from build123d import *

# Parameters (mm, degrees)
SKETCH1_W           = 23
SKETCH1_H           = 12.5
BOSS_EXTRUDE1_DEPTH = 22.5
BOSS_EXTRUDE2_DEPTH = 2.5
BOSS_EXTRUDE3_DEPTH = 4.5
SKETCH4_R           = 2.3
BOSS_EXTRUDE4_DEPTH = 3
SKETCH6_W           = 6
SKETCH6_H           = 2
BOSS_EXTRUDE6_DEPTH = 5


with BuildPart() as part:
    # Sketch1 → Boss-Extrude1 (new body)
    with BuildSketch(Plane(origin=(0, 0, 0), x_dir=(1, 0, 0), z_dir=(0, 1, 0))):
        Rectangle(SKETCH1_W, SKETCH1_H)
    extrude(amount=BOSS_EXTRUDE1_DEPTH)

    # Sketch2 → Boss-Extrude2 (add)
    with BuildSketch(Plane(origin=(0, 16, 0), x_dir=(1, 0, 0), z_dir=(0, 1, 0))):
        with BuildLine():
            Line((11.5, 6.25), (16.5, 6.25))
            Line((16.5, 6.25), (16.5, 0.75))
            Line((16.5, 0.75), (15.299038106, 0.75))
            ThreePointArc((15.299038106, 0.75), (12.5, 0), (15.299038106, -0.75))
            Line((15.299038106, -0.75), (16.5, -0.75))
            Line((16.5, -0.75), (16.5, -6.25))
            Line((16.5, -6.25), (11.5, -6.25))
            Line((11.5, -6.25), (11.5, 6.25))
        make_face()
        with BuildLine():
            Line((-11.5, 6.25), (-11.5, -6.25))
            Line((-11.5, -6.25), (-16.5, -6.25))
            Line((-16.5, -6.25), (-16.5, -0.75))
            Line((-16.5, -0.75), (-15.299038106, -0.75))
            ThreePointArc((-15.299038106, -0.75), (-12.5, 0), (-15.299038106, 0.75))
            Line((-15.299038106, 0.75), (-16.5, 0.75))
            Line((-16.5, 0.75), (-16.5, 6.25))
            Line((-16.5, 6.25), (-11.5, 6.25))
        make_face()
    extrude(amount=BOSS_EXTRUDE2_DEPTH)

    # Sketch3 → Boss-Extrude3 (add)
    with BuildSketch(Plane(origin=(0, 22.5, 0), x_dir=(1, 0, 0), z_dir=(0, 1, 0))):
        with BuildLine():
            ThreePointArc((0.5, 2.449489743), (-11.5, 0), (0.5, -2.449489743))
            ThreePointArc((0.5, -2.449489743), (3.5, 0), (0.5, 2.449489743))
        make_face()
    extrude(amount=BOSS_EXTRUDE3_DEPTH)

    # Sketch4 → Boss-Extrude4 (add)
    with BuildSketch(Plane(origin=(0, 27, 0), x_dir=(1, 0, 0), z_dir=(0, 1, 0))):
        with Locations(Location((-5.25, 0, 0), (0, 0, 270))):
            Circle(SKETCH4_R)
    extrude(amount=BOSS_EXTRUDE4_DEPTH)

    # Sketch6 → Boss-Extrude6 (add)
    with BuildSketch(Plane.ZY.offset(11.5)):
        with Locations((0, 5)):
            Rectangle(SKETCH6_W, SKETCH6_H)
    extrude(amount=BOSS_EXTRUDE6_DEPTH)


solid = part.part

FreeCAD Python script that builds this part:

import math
import FreeCAD as App
import Part
import Sketcher
from FreeCAD import Vector
Q = App.Units.Quantity


def add_polygon(sketch, points):
    """Adds a closed chain of lines whose ends are joined by coincident constraints."""
    first, n = sketch.GeometryCount, len(points)
    for a, b in zip(points, points[1:] + points[:1]):
        sketch.addGeometry(Part.LineSegment(App.Vector(*a, 0), App.Vector(*b, 0)), False)
    for i in range(n):
        sketch.addConstraint(Sketcher.Constraint("Coincident", first + i, 2, first + (i + 1) % n, 1))

doc = App.newDocument("Part")
body = doc.addObject("PartDesign::Body", "Body")

# Sketch on XZ plane
sketch1 = body.newObject("Sketcher::SketchObject", "Sketch")
sketch1.AttachmentSupport = (doc.getObject("XZ_Plane"), [""])
sketch1.MapMode = "FlatFace"
add_polygon(sketch1, [(-11.5, -6.25), (-11.5, 6.25), (11.5, 6.25), (11.5, -6.25)])  # lines 0-3
sketch1.addConstraint([
    Sketcher.Constraint("Vertical", 0),
    Sketcher.Constraint("Horizontal", 1),
    Sketcher.Constraint("Vertical", 2),
    Sketcher.Constraint("Horizontal", 3),
    Sketcher.Constraint("Symmetric", 0, 2, 2, 2, -1, 1),
    Sketcher.Constraint("DistanceX", 1, 1, 1, 2, Q("23 mm")),
    Sketcher.Constraint("DistanceY", 0, 1, 0, 2, Q("12.5 mm")),
])
pad1 = body.newObject("PartDesign::Pad", "Pad")
pad1.Profile = sketch1
pad1.Length = 22.5
pad1.Reversed = True

# Sketch on XZ plane
sketch2 = body.newObject("Sketcher::SketchObject", "Sketch001")
sketch2.AttachmentSupport = (doc.getObject("XZ_Plane"), [""])
sketch2.MapMode = "FlatFace"
sketch2.AttachmentOffset = App.Placement(Vector(0, 0, -16), App.Rotation())
sketch2.addGeometry([
    Part.LineSegment(Vector(16.5, -6.25, 0), Vector(11.5, -6.25, 0)),  # 0
    Part.LineSegment(Vector(11.5, -6.25, 0), Vector(11.5, 6.25, 0)),  # 1
    Part.LineSegment(Vector(11.5, 6.25, 0), Vector(16.5, 6.25, 0)),  # 2
    Part.LineSegment(Vector(16.5, 6.25, 0), Vector(16.5, 0.75, 0)),  # 3
    Part.LineSegment(Vector(16.5, 0.75, 0), Vector(15.299038, 0.75, 0)),  # 4
    Part.ArcOfCircle(Part.Circle(Vector(14, 0, 0), Vector(0, 0, 1), 1.5), math.radians(30), math.radians(330)),  # 5
    Part.LineSegment(Vector(15.299038, -0.75, 0), Vector(16.5, -0.75, 0)),  # 6
    Part.LineSegment(Vector(16.5, -0.75, 0), Vector(16.5, -6.25, 0)),  # 7
    Part.LineSegment(Vector(-11.5, 6.25, 0), Vector(-11.5, -6.25, 0)),  # 8
    Part.LineSegment(Vector(-11.5, -6.25, 0), Vector(-16.5, -6.25, 0)),  # 9
    Part.LineSegment(Vector(-16.5, -6.25, 0), Vector(-16.5, -0.75, 0)),  # 10
    Part.LineSegment(Vector(-16.5, -0.75, 0), Vector(-15.299038, -0.75, 0)),  # 11
    Part.ArcOfCircle(Part.Circle(Vector(-14, 0, 0), Vector(0, 0, 1), 1.5), math.radians(-150), math.radians(150)),  # 12
    Part.LineSegment(Vector(-15.299038, 0.75, 0), Vector(-16.5, 0.75, 0)),  # 13
    Part.LineSegment(Vector(-16.5, 0.75, 0), Vector(-16.5, 6.25, 0)),  # 14
    Part.LineSegment(Vector(-16.5, 6.25, 0), Vector(-11.5, 6.25, 0)),  # 15
], False)
sketch2.addConstraint([
    Sketcher.Constraint("Coincident", 0, 2, 1, 1),
    Sketcher.Constraint("Coincident", 1, 2, 2, 1),
    Sketcher.Constraint("Coincident", 2, 2, 3, 1),
    Sketcher.Constraint("Coincident", 3, 2, 4, 1),
    Sketcher.Constraint("Coincident", 4, 2, 5, 1),
    Sketcher.Constraint("Coincident", 5, 2, 6, 1),
    Sketcher.Constraint("Coincident", 6, 2, 7, 1),
    Sketcher.Constraint("Coincident", 7, 2, 0, 1),
    Sketcher.Constraint("Coincident", 8, 2, 9, 1),
    Sketcher.Constraint("Coincident", 9, 2, 10, 1),
    Sketcher.Constraint("Coincident", 10, 2, 11, 1),
    Sketcher.Constraint("Coincident", 11, 2, 12, 1),
    Sketcher.Constraint("Coincident", 12, 2, 13, 1),
    Sketcher.Constraint("Coincident", 13, 2, 14, 1),
    Sketcher.Constraint("Coincident", 14, 2, 15, 1),
    Sketcher.Constraint("Coincident", 15, 2, 8, 1),
    Sketcher.Constraint("Horizontal", 0),
    Sketcher.Constraint("Vertical", 1),
    Sketcher.Constraint("Horizontal", 2),
    Sketcher.Constraint("Vertical", 3),
    Sketcher.Constraint("Horizontal", 4),
    Sketcher.Constraint("Horizontal", 6),
    Sketcher.Constraint("Vertical", 7),
    Sketcher.Constraint("Vertical", 8),
    Sketcher.Constraint("Horizontal", 9),
    Sketcher.Constraint("Vertical", 10),
    Sketcher.Constraint("Horizontal", 11),
    Sketcher.Constraint("Horizontal", 13),
    Sketcher.Constraint("Vertical", 14),
    Sketcher.Constraint("Horizontal", 15),
    Sketcher.Constraint("Equal", 5, 12),
    Sketcher.Constraint("Symmetric", 5, 3, 12, 3, -1, 1),
    Sketcher.Constraint("Symmetric", 1, 2, 8, 2, -1, 1),
    Sketcher.Constraint("Symmetric", 3, 2, 10, 2, -1, 1),
    Sketcher.Constraint("Symmetric", 6, 2, 13, 2, -1, 1),
    Sketcher.Constraint("Symmetric", 7, 2, 9, 2, -2),
    Sketcher.Constraint("Symmetric", 5, 2, 11, 2, -2),
    Sketcher.Constraint("Horizontal", 2, 2, 14, 2),
    Sketcher.Constraint("Radius", 5, Q("1.5 mm")),
    Sketcher.Constraint("DistanceX", 0, 2, 0, 1, Q("5 mm")),
    Sketcher.Constraint("DistanceY", 1, 1, 1, 2, Q("12.5 mm")),
    Sketcher.Constraint("DistanceY", 3, 2, 3, 1, Q("5.5 mm")),
    Sketcher.Constraint("DistanceX", -1, 1, 5, 3, Q("14 mm")),
    Sketcher.Constraint("DistanceX", 8, 2, 0, 2, Q("23 mm")),
])
pad2 = body.newObject("PartDesign::Pad", "Pad001")
pad2.Profile = sketch2
pad2.Length = 2.5
pad2.Reversed = True

# Sketch on XZ plane
sketch3 = body.newObject("Sketcher::SketchObject", "Sketch002")
sketch3.AttachmentSupport = (doc.getObject("XZ_Plane"), [""])
sketch3.MapMode = "FlatFace"
sketch3.AttachmentOffset = App.Placement(Vector(0, 0, -22.5), App.Rotation())
sketch3.addGeometry([
    Part.ArcOfCircle(Part.Circle(Vector(-5.25, 0, 0), Vector(0, 0, 1), 6.25), math.radians(23.073918), math.radians(336.926082)),
    Part.ArcOfCircle(Part.Circle(Vector(1, 0, 0), Vector(0, 0, 1), 2.5), math.radians(-101.536959), math.radians(101.536959)),
], False)
sketch3.addConstraint([
    Sketcher.Constraint("Coincident", 0, 1, 1, 2),
    Sketcher.Constraint("Coincident", 1, 1, 0, 2),
    Sketcher.Constraint("Symmetric", 0, 1, 1, 1, -1),
    Sketcher.Constraint("Radius", 1, Q("2.5 mm")),
    Sketcher.Constraint("Radius", 0, Q("6.25 mm")),
    Sketcher.Constraint("DistanceX", -1, 1, 1, 3, Q("1 mm")),
    Sketcher.Constraint("DistanceX", -1, 1, 0, 1, Q("0.5 mm")),
])
pad3 = body.newObject("PartDesign::Pad", "Pad002")
pad3.Profile = sketch3
pad3.Length = 4.5
pad3.Reversed = True

# Sketch on XZ plane
sketch4 = body.newObject("Sketcher::SketchObject", "Sketch003")
sketch4.AttachmentSupport = (doc.getObject("XZ_Plane"), [""])
sketch4.MapMode = "FlatFace"
sketch4.AttachmentOffset = App.Placement(Vector(0, 0, -27), App.Rotation())
sketch4.addGeometry(Part.Circle(Vector(-5.25, 0, 0), Vector(0, 0, 1), 2.3), False)
sketch4.addConstraint([
    Sketcher.Constraint("PointOnObject", 0, 3, -1),
    Sketcher.Constraint("Diameter", 0, Q("4.6 mm")),
    Sketcher.Constraint("DistanceX", 0, 3, -1, 1, Q("5.25 mm")),
])
pad4 = body.newObject("PartDesign::Pad", "Pad003")
pad4.Profile = sketch4
pad4.Length = 3
pad4.Reversed = True

# Sketch on YZ plane
sketch5 = body.newObject("Sketcher::SketchObject", "Sketch004")
sketch5.AttachmentSupport = (doc.getObject("YZ_Plane"), [""])
sketch5.MapMode = "FlatFace"
sketch5.AttachmentOffset = App.Placement(Vector(0, 0, -11.5), App.Rotation())
add_polygon(sketch5, [(6, -3), (4, -3), (4, 3), (6, 3)])  # lines 0-3
sketch5.addConstraint([
    Sketcher.Constraint("Horizontal", 0),
    Sketcher.Constraint("Vertical", 1),
    Sketcher.Constraint("Horizontal", 2),
    Sketcher.Constraint("Vertical", 3),
    Sketcher.Constraint("DistanceX", 0, 2, 0, 1, Q("2 mm")),
    Sketcher.Constraint("DistanceY", 1, 1, 1, 2, Q("6 mm")),
    Sketcher.Constraint("DistanceX", -1, 1, 0, 2, Q("4 mm")),
    Sketcher.Constraint("DistanceY", 0, 2, -1, 1, Q("3 mm")),
])
pad5 = body.newObject("PartDesign::Pad", "Pad004")
pad5.Profile = sketch5
pad5.Length = 5
pad5.Reversed = True

doc.recompute()
